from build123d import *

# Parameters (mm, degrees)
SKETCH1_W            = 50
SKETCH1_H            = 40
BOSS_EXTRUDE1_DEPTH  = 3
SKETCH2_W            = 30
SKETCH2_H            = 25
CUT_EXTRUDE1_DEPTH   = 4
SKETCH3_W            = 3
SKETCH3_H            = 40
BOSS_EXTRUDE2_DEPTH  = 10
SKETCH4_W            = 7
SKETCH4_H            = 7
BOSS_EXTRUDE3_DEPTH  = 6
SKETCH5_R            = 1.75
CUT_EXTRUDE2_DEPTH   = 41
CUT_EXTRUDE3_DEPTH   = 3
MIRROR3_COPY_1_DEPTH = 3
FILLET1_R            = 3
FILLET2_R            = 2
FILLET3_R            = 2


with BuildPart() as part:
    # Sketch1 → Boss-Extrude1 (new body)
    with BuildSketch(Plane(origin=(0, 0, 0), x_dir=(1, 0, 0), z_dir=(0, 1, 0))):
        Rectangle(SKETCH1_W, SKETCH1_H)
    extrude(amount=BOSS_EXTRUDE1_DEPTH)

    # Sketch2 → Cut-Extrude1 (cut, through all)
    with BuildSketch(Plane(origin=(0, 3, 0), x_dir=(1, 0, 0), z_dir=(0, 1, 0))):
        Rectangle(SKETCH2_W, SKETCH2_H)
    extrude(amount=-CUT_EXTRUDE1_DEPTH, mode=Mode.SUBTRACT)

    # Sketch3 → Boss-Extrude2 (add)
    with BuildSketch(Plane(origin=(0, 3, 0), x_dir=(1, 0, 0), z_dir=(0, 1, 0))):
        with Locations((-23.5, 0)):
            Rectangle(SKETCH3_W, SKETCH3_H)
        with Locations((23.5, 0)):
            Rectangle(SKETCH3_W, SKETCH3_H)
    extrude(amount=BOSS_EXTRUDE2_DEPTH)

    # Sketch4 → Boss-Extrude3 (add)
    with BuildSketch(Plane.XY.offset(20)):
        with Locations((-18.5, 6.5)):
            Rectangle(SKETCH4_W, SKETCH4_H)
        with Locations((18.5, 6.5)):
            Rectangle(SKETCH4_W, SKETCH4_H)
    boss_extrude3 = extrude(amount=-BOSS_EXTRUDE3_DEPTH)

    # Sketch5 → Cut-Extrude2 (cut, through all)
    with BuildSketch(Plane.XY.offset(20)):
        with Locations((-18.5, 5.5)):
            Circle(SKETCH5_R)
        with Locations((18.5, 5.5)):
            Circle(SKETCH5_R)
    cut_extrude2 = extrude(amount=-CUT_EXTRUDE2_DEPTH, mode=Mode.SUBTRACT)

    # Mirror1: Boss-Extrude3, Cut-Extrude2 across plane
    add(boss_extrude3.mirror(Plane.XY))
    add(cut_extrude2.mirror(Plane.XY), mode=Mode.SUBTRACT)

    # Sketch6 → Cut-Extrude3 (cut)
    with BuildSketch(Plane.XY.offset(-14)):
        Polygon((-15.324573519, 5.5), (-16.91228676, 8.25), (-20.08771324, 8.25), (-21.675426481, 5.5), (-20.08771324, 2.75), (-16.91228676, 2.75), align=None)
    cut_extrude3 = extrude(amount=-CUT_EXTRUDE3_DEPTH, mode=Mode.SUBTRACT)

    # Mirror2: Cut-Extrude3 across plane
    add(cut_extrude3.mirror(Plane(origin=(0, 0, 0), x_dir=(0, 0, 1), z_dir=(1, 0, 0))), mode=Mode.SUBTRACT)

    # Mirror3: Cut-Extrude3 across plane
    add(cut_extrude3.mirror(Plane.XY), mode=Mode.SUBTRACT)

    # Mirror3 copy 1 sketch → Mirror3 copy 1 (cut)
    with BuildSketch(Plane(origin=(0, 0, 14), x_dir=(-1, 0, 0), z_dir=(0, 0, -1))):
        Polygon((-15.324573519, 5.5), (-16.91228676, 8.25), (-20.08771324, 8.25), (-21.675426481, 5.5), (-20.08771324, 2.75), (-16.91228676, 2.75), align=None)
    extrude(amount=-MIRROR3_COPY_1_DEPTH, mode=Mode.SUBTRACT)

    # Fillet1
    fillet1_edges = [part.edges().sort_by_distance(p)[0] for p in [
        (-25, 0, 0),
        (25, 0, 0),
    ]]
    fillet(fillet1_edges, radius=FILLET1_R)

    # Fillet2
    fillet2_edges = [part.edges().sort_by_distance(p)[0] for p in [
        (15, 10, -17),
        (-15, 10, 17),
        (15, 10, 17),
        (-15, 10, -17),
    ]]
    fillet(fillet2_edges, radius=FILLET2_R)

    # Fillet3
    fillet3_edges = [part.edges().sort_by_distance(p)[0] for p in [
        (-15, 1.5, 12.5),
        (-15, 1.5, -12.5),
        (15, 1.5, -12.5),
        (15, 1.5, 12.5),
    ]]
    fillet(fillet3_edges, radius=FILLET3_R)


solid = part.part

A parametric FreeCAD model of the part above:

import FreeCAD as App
import Part
import Sketcher

V = App.Vector
Q = App.Units.Quantity


def edges_at(feature, points):
    """Names of the edges that pass closest to the given points."""
    edges = feature.Shape.Edges
    near = lambda p: min(range(len(edges)), key=lambda i: edges[i].distToShape(Part.Vertex(*p))[0])
    return sorted({f"Edge{near(p) + 1}" for p in points})

doc = App.newDocument("Part")
body = doc.addObject("PartDesign::Body", "Body")

# Sketch on XZ plane
sketch1 = body.newObject("Sketcher::SketchObject", "Sketch")
sketch1.AttachmentSupport = (doc.getObject("XZ_Plane"), [""])
sketch1.MapMode = "FlatFace"
sketch1.addGeometry([
    Part.LineSegment(V(-25, -20, 0), V(-25, 20, 0)),
    Part.LineSegment(V(-25, 20, 0), V(25, 20, 0)),
    Part.LineSegment(V(25, 20, 0), V(25, -20, 0)),
    Part.LineSegment(V(25, -20, 0), V(-25, -20, 0)),
], False)
sketch1.addConstraint([
    Sketcher.Constraint("Coincident", 0, 2, 1, 1),
    Sketcher.Constraint("Coincident", 1, 2, 2, 1),
    Sketcher.Constraint("Coincident", 2, 2, 3, 1),
    Sketcher.Constraint("Coincident", 3, 2, 0, 1),
    Sketcher.Constraint("Vertical", 0),
    Sketcher.Constraint("Horizontal", 1),
    Sketcher.Constraint("Vertical", 2),
    Sketcher.Constraint("Horizontal", 3),
    Sketcher.Constraint("Symmetric", 0, 2, 2, 2, -1, 1),
    Sketcher.Constraint("DistanceX", 1, 1, 1, 2, 50.0),
    Sketcher.Constraint("DistanceY", 0, 1, 0, 2, 40.0),
])
pad1 = body.newObject("PartDesign::Pad", "Pad")
pad1.Profile = sketch1
pad1.Length = 3
pad1.Reversed = True

# Sketch on XZ plane
sketch2 = body.newObject("Sketcher::SketchObject", "Sketch001")
sketch2.AttachmentSupport = (doc.getObject("XZ_Plane"), [""])
sketch2.MapMode = "FlatFace"
sketch2.AttachmentOffset = App.Placement(V(0, 0, -3), App.Rotation())
sketch2.addGeometry([
    Part.LineSegment(V(-15, -12.5, 0), V(-15, 12.5, 0)),
    Part.LineSegment(V(-15, 12.5, 0), V(15, 12.5, 0)),
    Part.LineSegment(V(15, 12.5, 0), V(15, -12.5, 0)),
    Part.LineSegment(V(15, -12.5, 0), V(-15, -12.5, 0)),
], False)
sketch2.addConstraint([
    Sketcher.Constraint("Coincident", 0, 2, 1, 1),
    Sketcher.Constraint("Coincident", 1, 2, 2, 1),
    Sketcher.Constraint("Coincident", 2, 2, 3, 1),
    Sketcher.Constraint("Coincident", 3, 2, 0, 1),
    Sketcher.Constraint("Vertical", 0),
    Sketcher.Constraint("Horizontal", 1),
    Sketcher.Constraint("Vertical", 2),
    Sketcher.Constraint("Horizontal", 3),
    Sketcher.Constraint("Symmetric", 0, 2, 2, 2, -1, 1),
    Sketcher.Constraint("DistanceX", 1, 1, 1, 2, 30.0),
    Sketcher.Constraint("DistanceY", 0, 1, 0, 2, 25.0),
])
pocket1 = body.newObject("PartDesign::Pocket", "Pocket")
pocket1.Profile = sketch2
pocket1.Type = "ThroughAll"
pocket1.Reversed = True

# Sketch on XZ plane
sketch3 = body.newObject("Sketcher::SketchObject", "Sketch002")
sketch3.AttachmentSupport = (doc.getObject("XZ_Plane"), [""])
sketch3.MapMode = "FlatFace"
sketch3.AttachmentOffset = App.Placement(V(0, 0, -3), App.Rotation())
sketch3.addGeometry([
    Part.LineSegment(V(-25, -20, 0), V(-25, 20, 0)),  # 0
    Part.LineSegment(V(-25, 20, 0), V(-22, 20, 0)),  # 1
    Part.LineSegment(V(-22, 20, 0), V(-22, -20, 0)),  # 2
    Part.LineSegment(V(-22, -20, 0), V(-25, -20, 0)),  # 3
    Part.LineSegment(V(22, -20, 0), V(22, 20, 0)),  # 4
    Part.LineSegment(V(22, 20, 0), V(25, 20, 0)),  # 5
    Part.LineSegment(V(25, 20, 0), V(25, -20, 0)),  # 6
    Part.LineSegment(V(25, -20, 0), V(22, -20, 0)),  # 7
], False)
sketch3.addConstraint([
    Sketcher.Constraint("Coincident", 0, 2, 1, 1),
    Sketcher.Constraint("Coincident", 1, 2, 2, 1),
    Sketcher.Constraint("Coincident", 2, 2, 3, 1),
    Sketcher.Constraint("Coincident", 3, 2, 0, 1),
    Sketcher.Constraint("Coincident", 4, 2, 5, 1),
    Sketcher.Constraint("Coincident", 5, 2, 6, 1),
    Sketcher.Constraint("Coincident", 6, 2, 7, 1),
    Sketcher.Constraint("Coincident", 7, 2, 4, 1),
    Sketcher.Constraint("Vertical", 0),
    Sketcher.Constraint("Horizontal", 1),
    Sketcher.Constraint("Vertical", 2),
    Sketcher.Constraint("Horizontal", 3),
    Sketcher.Constraint("Vertical", 4),
    Sketcher.Constraint("Horizontal", 5),
    Sketcher.Constraint("Vertical", 6),
    Sketcher.Constraint("Horizontal", 7),
    Sketcher.Constraint("Symmetric", 2, 2, 4, 2, -1, 1),
    Sketcher.Constraint("Symmetric", 0, 2, 6, 2, -1, 1),
    Sketcher.Constraint("Horizontal", 1, 2, 4, 2),
    Sketcher.Constraint("DistanceX", 1, 1, 1, 2, 3.0),
    Sketcher.Constraint("DistanceY", 0, 1, 0, 2, 40.0),
    Sketcher.Constraint("DistanceX", 0, 2, -1, 1, 25.0),
])
pad2 = body.newObject("PartDesign::Pad", "Pad001")
pad2.Profile = sketch3
pad2.Length = 10
pad2.Reversed = True

# Sketch on XY plane
sketch4 = body.newObject("Sketcher::SketchObject", "Sketch003")
sketch4.AttachmentSupport = (doc.getObject("XY_Plane"), [""])
sketch4.MapMode = "FlatFace"
sketch4.AttachmentOffset = App.Placement(V(0, 0, 20), App.Rotation())
sketch4.addGeometry([
    Part.LineSegment(V(-22, 10, 0), V(-22, 3, 0)),  # 0
    Part.LineSegment(V(-22, 3, 0), V(-15, 3, 0)),  # 1
    Part.LineSegment(V(-15, 3, 0), V(-15, 10, 0)),  # 2
    Part.LineSegment(V(-15, 10, 0), V(-22, 10, 0)),  # 3
    Part.LineSegment(V(15, 10, 0), V(15, 3, 0)),  # 4
    Part.LineSegment(V(15, 3, 0), V(22, 3, 0)),  # 5
    Part.LineSegment(V(22, 3, 0), V(22, 10, 0)),  # 6
    Part.LineSegment(V(22, 10, 0), V(15, 10, 0)),  # 7
], False)
sketch4.addConstraint([
    Sketcher.Constraint("Coincident", 0, 2, 1, 1),
    Sketcher.Constraint("Coincident", 1, 2, 2, 1),
    Sketcher.Constraint("Coincident", 2, 2, 3, 1),
    Sketcher.Constraint("Coincident", 3, 2, 0, 1),
    Sketcher.Constraint("Coincident", 4, 2, 5, 1),
    Sketcher.Constraint("Coincident", 5, 2, 6, 1),
    Sketcher.Constraint("Coincident", 6, 2, 7, 1),
    Sketcher.Constraint("Coincident", 7, 2, 4, 1),
    Sketcher.Constraint("Vertical", 0),
    Sketcher.Constraint("Horizontal", 1),
    Sketcher.Constraint("Vertical", 2),
    Sketcher.Constraint("Horizontal", 3),
    Sketcher.Constraint("Vertical", 4),
    Sketcher.Constraint("Horizontal", 5),
    Sketcher.Constraint("Vertical", 6),
    Sketcher.Constraint("Horizontal", 7),
    Sketcher.Constraint("Symmetric", 1, 2, 4, 2, -2),
    Sketcher.Constraint("Symmetric", 3, 2, 6, 2, -2),
    Sketcher.Constraint("Equal", 7, 0),
    Sketcher.Constraint("DistanceX", 1, 1, 1, 2, 7.0),
    Sketcher.Constraint("DistanceX", 0, 2, -1, 1, 22.0),
    Sketcher.Constraint("DistanceY", -1, 1, 0, 2, 3.0),
])
pad3 = body.newObject("PartDesign::Pad", "Pad002")
pad3.Profile = sketch4
pad3.Length = 6
pad3.Reversed = True

# Sketch on XY plane
sketch5 = body.newObject("Sketcher::SketchObject", "Sketch004")
sketch5.AttachmentSupport = (doc.getObject("XY_Plane"), [""])
sketch5.MapMode = "FlatFace"
sketch5.AttachmentOffset = App.Placement(V(0, 0, 20), App.Rotation())
sketch5.addGeometry([
    Part.Circle(V(-18.5, 5.5, 0), V(0, 0, 1), 1.75),
    Part.Circle(V(18.5, 5.5, 0), V(0, 0, 1), 1.75),
], False)
sketch5.addConstraint([
    Sketcher.Constraint("Equal", 0, 1),
    Sketcher.Constraint("Symmetric", 0, 3, 1, 3, -2),
    Sketcher.Constraint("Diameter", 0, 3.5),
    Sketcher.Constraint("DistanceX", 0, 3, 1, 3, 37.0),
    Sketcher.Constraint("DistanceY", -1, 1, 0, 3, 5.5),
])
pocket2 = body.newObject("PartDesign::Pocket", "Pocket001")
pocket2.Profile = sketch5
pocket2.Type = "ThroughAll"
doc.recompute()

mirrored = body.newObject("PartDesign::Mirrored", "Mirrored")
mirrored.Originals = [pad3, pocket2]
mirrored.MirrorPlane = (doc.getObject("XY_Plane"), [""])
body.Tip = mirrored

# Sketch on XY plane
sketch6 = body.newObject("Sketcher::SketchObject", "Sketch005")
sketch6.AttachmentSupport = (doc.getObject("XY_Plane"), [""])
sketch6.MapMode = "FlatFace"
sketch6.AttachmentOffset = App.Placement(V(0, 0, -14), App.Rotation())
sketch6.addGeometry([
    Part.LineSegment(V(-15.324574, 5.5, 0), V(-16.912287, 8.25, 0)),  # 0
    Part.LineSegment(V(-16.912287, 8.25, 0), V(-20.087713, 8.25, 0)),  # 1
    Part.LineSegment(V(-20.087713, 8.25, 0), V(-21.675426, 5.5, 0)),  # 2
    Part.LineSegment(V(-21.675426, 5.5, 0), V(-20.087713, 2.75, 0)),  # 3
    Part.LineSegment(V(-20.087713, 2.75, 0), V(-16.912287, 2.75, 0)),  # 4
    Part.LineSegment(V(-16.912287, 2.75, 0), V(-15.324574, 5.5, 0)),  # 5
], False)
sketch6.addConstraint([
    Sketcher.Constraint("Coincident", 0, 2, 1, 1),
    Sketcher.Constraint("Coincident", 1, 2, 2, 1),
    Sketcher.Constraint("Coincident", 2, 2, 3, 1),
    Sketcher.Constraint("Coincident", 3, 2, 4, 1),
    Sketcher.Constraint("Coincident", 4, 2, 5, 1),
    Sketcher.Constraint("Coincident", 5, 2, 0, 1),
    Sketcher.Constraint("Horizontal", 1),
    Sketcher.Constraint("Horizontal", 4),
    Sketcher.Constraint("Parallel", 0, 3),
    Sketcher.Constraint("Parallel", 2, 5),
    Sketcher.Constraint("Horizontal", 2, 2, 5, 2),
    Sketcher.Constraint("Vertical", 1, 2, 3, 2),
    Sketcher.Constraint("Vertical", 0, 2, 4, 2),
    Sketcher.Constraint("Angle", 0, Q("120 deg")),
    Sketcher.Constraint("DistanceY", -1, 1, 2, 2, 5.5),
    Sketcher.Constraint("DistanceY", 3, 2, 1, 2, 5.5),
    Sketcher.Constraint("DistanceX", 1, 2, 1, 1, 3.175426),
    Sketcher.Constraint("DistanceX", 0, 2, -1, 1, 16.912287),
])
pocket3 = body.newObject("PartDesign::Pocket", "Pocket002")
pocket3.Profile = sketch6
pocket3.Length = 3
doc.recompute()

mirrored2 = body.newObject("PartDesign::Mirrored", "Mirrored001")
mirrored2.Originals = [pocket3]
mirrored2.MirrorPlane = (doc.getObject("YZ_Plane"), [""])
body.Tip = mirrored2
doc.recompute()

mirrored3 = body.newObject("PartDesign::Mirrored", "Mirrored002")
mirrored3.Originals = [pocket3]
mirrored3.MirrorPlane = (doc.getObject("XY_Plane"), [""])
body.Tip = mirrored3

# Sketch on XY plane
sketch7 = body.newObject("Sketcher::SketchObject", "Sketch006")
sketch7.AttachmentSupport = (doc.getObject("XY_Plane"), [""])
sketch7.MapMode = "FlatFace"
sketch7.AttachmentOffset = App.Placement(V(0, 0, 14), App.Rotation())
sketch7.addGeometry([
    Part.LineSegment(V(15.324574, 5.5, 0), V(16.912287, 8.25, 0)),  # 0
    Part.LineSegment(V(16.912287, 8.25, 0), V(20.087713, 8.25, 0)),  # 1
    Part.LineSegment(V(20.087713, 8.25, 0), V(21.675426, 5.5, 0)),  # 2
    Part.LineSegment(V(21.675426, 5.5, 0), V(20.087713, 2.75, 0)),  # 3
    Part.LineSegment(V(20.087713, 2.75, 0), V(16.912287, 2.75, 0)),  # 4
    Part.LineSegment(V(16.912287, 2.75, 0), V(15.324574, 5.5, 0)),  # 5
], False)
sketch7.addConstraint([
    Sketcher.Constraint("Coincident", 0, 2, 1, 1),
    Sketcher.Constraint("Coincident", 1, 2, 2, 1),
    Sketcher.Constraint("Coincident", 2, 2, 3, 1),
    Sketcher.Constraint("Coincident", 3, 2, 4, 1),
    Sketcher.Constraint("Coincident", 4, 2, 5, 1),
    Sketcher.Constraint("Coincident", 5, 2, 0, 1),
    Sketcher.Constraint("Horizontal", 1),
    Sketcher.Constraint("Horizontal", 4),
    Sketcher.Constraint("Parallel", 0, 3),
    Sketcher.Constraint("Parallel", 2, 5),
    Sketcher.Constraint("Horizontal", 2, 2, 5, 2),
    Sketcher.Constraint("Vertical", 1, 2, 3, 2),
    Sketcher.Constraint("Vertical", 0, 2, 4, 2),
    Sketcher.Constraint("Angle", 0, Q("60 deg")),
    Sketcher.Constraint("DistanceY", -1, 1, 2, 2, 5.5),
    Sketcher.Constraint("DistanceY", 3, 2, 1, 2, 5.5),
    Sketcher.Constraint("DistanceX", 1, 1, 1, 2, 3.175426),
    Sketcher.Constraint("DistanceX", -1, 1, 0, 2, 16.912287),
])
pocket4 = body.newObject("PartDesign::Pocket", "Pocket003")
pocket4.Profile = sketch7
pocket4.Length = 3
pocket4.Reversed = True
doc.recompute()

fillet = body.newObject("PartDesign::Fillet", "Fillet")
fillet.Base = (pocket4, edges_at(pocket4, [(-25, 0, 0), (25, 0, 0)]))
fillet.Radius = 3
doc.recompute()

fillet2 = body.newObject("PartDesign::Fillet", "Fillet001")
fillet2.Base = (fillet, edges_at(fillet, [
    (15, 10, -17),
    (-15, 10, 17),
    (15, 10, 17),
    (-15, 10, -17),
]))
fillet2.Radius = 2
doc.recompute()

fillet3 = body.newObject("PartDesign::Fillet", "Fillet002")
fillet3.Base = (fillet2, edges_at(fillet2, [
    (-15, 1.5, 12.5),
    (-15, 1.5, -12.5),
    (15, 1.5, -12.5),
    (15, 1.5, 12.5),
]))
fillet3.Radius = 2

doc.recompute()
